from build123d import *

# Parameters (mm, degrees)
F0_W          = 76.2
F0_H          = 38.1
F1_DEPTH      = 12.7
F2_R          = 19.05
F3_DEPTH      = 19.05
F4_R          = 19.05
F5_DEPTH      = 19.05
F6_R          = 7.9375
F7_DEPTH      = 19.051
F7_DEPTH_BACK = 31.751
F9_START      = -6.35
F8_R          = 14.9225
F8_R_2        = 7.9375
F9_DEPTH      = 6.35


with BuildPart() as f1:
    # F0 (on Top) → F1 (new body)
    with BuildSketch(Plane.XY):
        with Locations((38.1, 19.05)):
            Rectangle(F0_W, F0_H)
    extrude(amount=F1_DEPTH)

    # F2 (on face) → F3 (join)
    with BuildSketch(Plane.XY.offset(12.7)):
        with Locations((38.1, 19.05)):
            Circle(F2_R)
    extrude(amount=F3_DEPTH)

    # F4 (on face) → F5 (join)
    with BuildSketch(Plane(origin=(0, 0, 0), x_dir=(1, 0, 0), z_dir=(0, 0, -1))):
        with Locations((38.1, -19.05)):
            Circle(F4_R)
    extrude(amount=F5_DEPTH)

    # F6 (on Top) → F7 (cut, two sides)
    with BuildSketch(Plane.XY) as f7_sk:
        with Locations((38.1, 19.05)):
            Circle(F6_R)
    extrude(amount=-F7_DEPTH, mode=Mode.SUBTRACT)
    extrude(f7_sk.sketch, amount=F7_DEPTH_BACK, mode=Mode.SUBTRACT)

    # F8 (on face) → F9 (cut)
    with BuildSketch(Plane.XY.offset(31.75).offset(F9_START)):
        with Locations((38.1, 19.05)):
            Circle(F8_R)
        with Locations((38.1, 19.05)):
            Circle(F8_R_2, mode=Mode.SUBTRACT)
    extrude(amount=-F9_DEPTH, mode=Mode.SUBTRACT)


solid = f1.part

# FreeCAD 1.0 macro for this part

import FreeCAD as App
import Part
import Sketcher

V = App.Vector
Q = App.Units.Quantity

doc = App.newDocument("Part")
body = doc.addObject("PartDesign::Body", "Body")

sketch1 = doc.addObject("Sketcher::SketchObject", "Sketch")
body.addObject(sketch1)
sketch1.AttachmentSupport = (doc.XY_Plane, [""])
sketch1.MapMode = "FlatFace"
sketch1.addGeometry([
    Part.LineSegment(V(0, 38.1, 0), V(0, 0, 0)),
    Part.LineSegment(V(0, 0, 0), V(76.2, 0, 0)),
    Part.LineSegment(V(76.2, 0, 0), V(76.2, 38.1, 0)),
    Part.LineSegment(V(76.2, 38.1, 0), V(0, 38.1, 0)),
], False)
sketch1.addConstraint([
    Sketcher.Constraint("Coincident", 0, 2, 1, 1),
    Sketcher.Constraint("Coincident", 1, 2, 2, 1),
    Sketcher.Constraint("Coincident", 2, 2, 3, 1),
    Sketcher.Constraint("Coincident", 3, 2, 0, 1),
    Sketcher.Constraint("Vertical", 0),
    Sketcher.Constraint("Horizontal", 1),
    Sketcher.Constraint("Vertical", 2),
    Sketcher.Constraint("Horizontal", 3),
    Sketcher.Constraint("Coincident", 0, 2, -1, 1),
    Sketcher.Constraint("DistanceX", 1, 1, 1, 2, Q("3 in")),
    Sketcher.Constraint("DistanceY", 0, 2, 0, 1, Q("1.5 in")),
])
pad1 = doc.addObject("PartDesign::Pad", "Pad")
body.addObject(pad1)
pad1.Profile = sketch1
pad1.Length = Q("0.5 in")

sketch2 = doc.addObject("Sketcher::SketchObject", "Sketch001")
body.addObject(sketch2)
sketch2.AttachmentSupport = (doc.XY_Plane, [""])
sketch2.MapMode = "FlatFace"
sketch2.AttachmentOffset = App.Placement(V(0, 0, 0.5 * 25.4), App.Rotation())
sketch2.addGeometry(Part.Circle(V(38.1, 19.05, 0), V(0, 0, 1), 19.05), False)
sketch2.addConstraint([
    Sketcher.Constraint("Diameter", 0, Q("1.5 in")),
    Sketcher.Constraint("DistanceX", -1, 1, 0, 3, Q("1.5 in")),
    Sketcher.Constraint("DistanceY", -1, 1, 0, 3, Q("0.75 in")),
])
pad2 = doc.addObject("PartDesign::Pad", "Pad001")
body.addObject(pad2)
pad2.Profile = sketch2
pad2.Length = Q("0.75 in")

sketch3 = doc.addObject("Sketcher::SketchObject", "Sketch002")
body.addObject(sketch3)
sketch3.AttachmentSupport = (doc.XY_Plane, [""])
sketch3.MapMode = "FlatFace"
sketch3.addGeometry(Part.Circle(V(38.1, 19.05, 0), V(0, 0, 1), 19.05), False)
sketch3.addConstraint([
    Sketcher.Constraint("Diameter", 0, Q("1.5 in")),
    Sketcher.Constraint("DistanceX", -1, 1, 0, 3, Q("1.5 in")),
    Sketcher.Constraint("DistanceY", -1, 1, 0, 3, Q("0.75 in")),
])
pad3 = doc.addObject("PartDesign::Pad", "Pad002")
body.addObject(pad3)
pad3.Profile = sketch3
pad3.Length = Q("0.75 in")
pad3.Reversed = True

sketch4 = doc.addObject("Sketcher::SketchObject", "Sketch003")
body.addObject(sketch4)
sketch4.AttachmentSupport = (doc.XY_Plane, [""])
sketch4.MapMode = "FlatFace"
sketch4.addGeometry(Part.Circle(V(38.1, 19.05, 0), V(0, 0, 1), 7.9375), False)
sketch4.addConstraint([
    Sketcher.Constraint("Diameter", 0, Q("0.625 in")),
    Sketcher.Constraint("DistanceX", -1, 1, 0, 3, Q("1.5 in")),
    Sketcher.Constraint("DistanceY", -1, 1, 0, 3, Q("0.75 in")),
])
pocket1 = doc.addObject("PartDesign::Pocket", "Pocket")
body.addObject(pocket1)
pocket1.Profile = sketch4
pocket1.Type = "ThroughAll"
pocket1.Midplane = True

sketch5 = doc.addObject("Sketcher::SketchObject", "Sketch004")
body.addObject(sketch5)
sketch5.AttachmentSupport = (doc.XY_Plane, [""])
sketch5.MapMode = "FlatFace"
sketch5.AttachmentOffset = App.Placement(V(0, 0, 1 * 25.4), App.Rotation())
sketch5.addGeometry([
    Part.Circle(V(38.1, 19.05, 0), V(0, 0, 1), 14.9225),
    Part.Circle(V(38.1, 19.05, 0), V(0, 0, 1), 7.9375),
], False)
sketch5.addConstraint([
    Sketcher.Constraint("Coincident", 1, 3, 0, 3),
    Sketcher.Constraint("Diameter", 0, Q("1.175 in")),
    Sketcher.Constraint("Diameter", 1, Q("0.625 in")),
    Sketcher.Constraint("DistanceX", -1, 1, 0, 3, Q("1.5 in")),
    Sketcher.Constraint("DistanceY", -1, 1, 0, 3, Q("0.75 in")),
])
pocket2 = doc.addObject("PartDesign::Pocket", "Pocket001")
body.addObject(pocket2)
pocket2.Profile = sketch5
pocket2.Length = Q("0.25 in")

doc.recompute()
